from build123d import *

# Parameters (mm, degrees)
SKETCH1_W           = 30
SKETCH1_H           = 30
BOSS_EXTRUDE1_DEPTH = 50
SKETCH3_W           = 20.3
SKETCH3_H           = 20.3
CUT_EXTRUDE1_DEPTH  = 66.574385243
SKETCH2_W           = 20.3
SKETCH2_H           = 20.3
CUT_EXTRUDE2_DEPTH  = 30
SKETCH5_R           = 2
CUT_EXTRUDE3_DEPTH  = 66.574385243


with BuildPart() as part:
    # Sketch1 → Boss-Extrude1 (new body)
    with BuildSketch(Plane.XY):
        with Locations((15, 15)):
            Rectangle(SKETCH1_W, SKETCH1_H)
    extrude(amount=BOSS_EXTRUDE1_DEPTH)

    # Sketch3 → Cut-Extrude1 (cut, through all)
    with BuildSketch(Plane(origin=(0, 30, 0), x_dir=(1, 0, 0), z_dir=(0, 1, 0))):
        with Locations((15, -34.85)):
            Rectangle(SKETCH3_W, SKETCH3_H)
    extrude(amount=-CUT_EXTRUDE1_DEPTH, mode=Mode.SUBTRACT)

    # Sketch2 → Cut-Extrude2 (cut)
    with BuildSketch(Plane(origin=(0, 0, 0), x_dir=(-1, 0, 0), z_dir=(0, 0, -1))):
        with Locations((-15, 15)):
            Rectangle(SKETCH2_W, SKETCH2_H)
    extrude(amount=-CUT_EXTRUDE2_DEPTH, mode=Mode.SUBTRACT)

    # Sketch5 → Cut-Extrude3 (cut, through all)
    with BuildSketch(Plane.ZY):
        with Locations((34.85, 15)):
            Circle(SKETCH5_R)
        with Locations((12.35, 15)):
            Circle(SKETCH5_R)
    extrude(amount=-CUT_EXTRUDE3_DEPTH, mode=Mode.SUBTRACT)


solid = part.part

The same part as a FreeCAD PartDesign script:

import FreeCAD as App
import Part
import Sketcher

V = App.Vector

doc = App.newDocument("Part")
body = doc.addObject("PartDesign::Body", "Body")

# Sketch on XY plane
sketch1 = body.newObject("Sketcher::SketchObject", "Sketch")
sketch1.AttachmentSupport = (doc.getObject("XY_Plane"), [""])
sketch1.MapMode = "FlatFace"
sketch1.addGeometry(Part.LineSegment(V(0, 30, 0), V(0, 0, 0)), False)
sketch1.addGeometry(Part.LineSegment(V(0, 0, 0), V(30, 0, 0)), False)
sketch1.addGeometry(Part.LineSegment(V(30, 0, 0), V(30, 30, 0)), False)
sketch1.addGeometry(Part.LineSegment(V(30, 30, 0), V(0, 30, 0)), False)
sketch1.addConstraint(Sketcher.Constraint("Coincident", 0, 2, 1, 1))
sketch1.addConstraint(Sketcher.Constraint("Coincident", 1, 2, 2, 1))
sketch1.addConstraint(Sketcher.Constraint("Coincident", 2, 2, 3, 1))
sketch1.addConstraint(Sketcher.Constraint("Coincident", 3, 2, 0, 1))
sketch1.addConstraint(Sketcher.Constraint("Vertical", 0))
sketch1.addConstraint(Sketcher.Constraint("Horizontal", 1))
sketch1.addConstraint(Sketcher.Constraint("Vertical", 2))
sketch1.addConstraint(Sketcher.Constraint("Horizontal", 3))
sketch1.addConstraint(Sketcher.Constraint("Coincident", 0, 2, -1, 1))
sketch1.addConstraint(Sketcher.Constraint("Equal", 3, 0))
sketch1.addConstraint(Sketcher.Constraint("DistanceX", 1, 1, 1, 2, 30.0))
pad1 = body.newObject("PartDesign::Pad", "Pad")
pad1.Profile = sketch1
pad1.Length = 50

# Sketch on XZ plane
sketch2 = body.newObject("Sketcher::SketchObject", "Sketch001")
sketch2.AttachmentSupport = (doc.getObject("XZ_Plane"), [""])
sketch2.MapMode = "FlatFace"
sketch2.AttachmentOffset = App.Placement(V(0, 0, -30), App.Rotation())
sketch2.addGeometry(Part.LineSegment(V(4.85, 24.7, 0), V(4.85, 45, 0)), False)
sketch2.addGeometry(Part.LineSegment(V(4.85, 45, 0), V(25.15, 45, 0)), False)
sketch2.addGeometry(Part.LineSegment(V(25.15, 45, 0), V(25.15, 24.7, 0)), False)
sketch2.addGeometry(Part.LineSegment(V(25.15, 24.7, 0), V(4.85, 24.7, 0)), False)
sketch2.addConstraint(Sketcher.Constraint("Coincident", 0, 2, 1, 1))
sketch2.addConstraint(Sketcher.Constraint("Coincident", 1, 2, 2, 1))
sketch2.addConstraint(Sketcher.Constraint("Coincident", 2, 2, 3, 1))
sketch2.addConstraint(Sketcher.Constraint("Coincident", 3, 2, 0, 1))
sketch2.addConstraint(Sketcher.Constraint("Vertical", 0))
sketch2.addConstraint(Sketcher.Constraint("Horizontal", 1))
sketch2.addConstraint(Sketcher.Constraint("Vertical", 2))
sketch2.addConstraint(Sketcher.Constraint("Horizontal", 3))
sketch2.addConstraint(Sketcher.Constraint("Equal", 3, 0))
sketch2.addConstraint(Sketcher.Constraint("DistanceX", 1, 1, 1, 2, 20.3))
sketch2.addConstraint(Sketcher.Constraint("DistanceY", -1, 1, 0, 2, 45.0))
sketch2.addConstraint(Sketcher.Constraint("DistanceX", -1, 1, 0, 2, 4.85))
pocket1 = body.newObject("PartDesign::Pocket", "Pocket")
pocket1.Profile = sketch2
pocket1.Type = "ThroughAll"
pocket1.Reversed = True

# Sketch on XY plane
sketch3 = body.newObject("Sketcher::SketchObject", "Sketch002")
sketch3.AttachmentSupport = (doc.getObject("XY_Plane"), [""])
sketch3.MapMode = "FlatFace"
sketch3.addGeometry(Part.LineSegment(V(25.15, 25.15, 0), V(25.15, 4.85, 0)), False)
sketch3.addGeometry(Part.LineSegment(V(25.15, 4.85, 0), V(4.85, 4.85, 0)), False)
sketch3.addGeometry(Part.LineSegment(V(4.85, 4.85, 0), V(4.85, 25.15, 0)), False)
sketch3.addGeometry(Part.LineSegment(V(4.85, 25.15, 0), V(25.15, 25.15, 0)), False)
sketch3.addConstraint(Sketcher.Constraint("Coincident", 0, 2, 1, 1))
sketch3.addConstraint(Sketcher.Constraint("Coincident", 1, 2, 2, 1))
sketch3.addConstraint(Sketcher.Constraint("Coincident", 2, 2, 3, 1))
sketch3.addConstraint(Sketcher.Constraint("Coincident", 3, 2, 0, 1))
sketch3.addConstraint(Sketcher.Constraint("Vertical", 0))
sketch3.addConstraint(Sketcher.Constraint("Horizontal", 1))
sketch3.addConstraint(Sketcher.Constraint("Vertical", 2))
sketch3.addConstraint(Sketcher.Constraint("Horizontal", 3))
sketch3.addConstraint(Sketcher.Constraint("Equal", 3, 0))
sketch3.addConstraint(Sketcher.Constraint("DistanceX", 1, 2, 1, 1, 20.3))
sketch3.addConstraint(Sketcher.Constraint("DistanceX", -1, 1, 0, 2, 25.15))
sketch3.addConstraint(Sketcher.Constraint("DistanceY", -1, 1, 0, 2, 4.85))
pocket2 = body.newObject("PartDesign::Pocket", "Pocket001")
pocket2.Profile = sketch3
pocket2.Length = 30
pocket2.Reversed = True

# Sketch on YZ plane
sketch4 = body.newObject("Sketcher::SketchObject", "Sketch003")
sketch4.AttachmentSupport = (doc.getObject("YZ_Plane"), [""])
sketch4.MapMode = "FlatFace"
sketch4.addGeometry(Part.Circle(V(15, 34.85, 0), V(0, 0, 1), 2), False)
sketch4.addGeometry(Part.Circle(V(15, 12.35, 0), V(0, 0, 1), 2), False)
sketch4.addConstraint(Sketcher.Constraint("Equal", 0, 1))
sketch4.addConstraint(Sketcher.Constraint("Vertical", 0, 3, 1, 3))
sketch4.addConstraint(Sketcher.Constraint("Diameter", 0, 4.0))
sketch4.addConstraint(Sketcher.Constraint("DistanceX", -1, 1, 0, 3, 15.0))
sketch4.addConstraint(Sketcher.Constraint("DistanceY", 1, 3, 0, 3, 22.5))
sketch4.addConstraint(Sketcher.Constraint("DistanceY", -1, 1, 0, 3, 34.85))
pocket3 = body.newObject("PartDesign::Pocket", "Pocket002")
pocket3.Profile = sketch4
pocket3.Type = "ThroughAll"
pocket3.Reversed = True

doc.recompute()
